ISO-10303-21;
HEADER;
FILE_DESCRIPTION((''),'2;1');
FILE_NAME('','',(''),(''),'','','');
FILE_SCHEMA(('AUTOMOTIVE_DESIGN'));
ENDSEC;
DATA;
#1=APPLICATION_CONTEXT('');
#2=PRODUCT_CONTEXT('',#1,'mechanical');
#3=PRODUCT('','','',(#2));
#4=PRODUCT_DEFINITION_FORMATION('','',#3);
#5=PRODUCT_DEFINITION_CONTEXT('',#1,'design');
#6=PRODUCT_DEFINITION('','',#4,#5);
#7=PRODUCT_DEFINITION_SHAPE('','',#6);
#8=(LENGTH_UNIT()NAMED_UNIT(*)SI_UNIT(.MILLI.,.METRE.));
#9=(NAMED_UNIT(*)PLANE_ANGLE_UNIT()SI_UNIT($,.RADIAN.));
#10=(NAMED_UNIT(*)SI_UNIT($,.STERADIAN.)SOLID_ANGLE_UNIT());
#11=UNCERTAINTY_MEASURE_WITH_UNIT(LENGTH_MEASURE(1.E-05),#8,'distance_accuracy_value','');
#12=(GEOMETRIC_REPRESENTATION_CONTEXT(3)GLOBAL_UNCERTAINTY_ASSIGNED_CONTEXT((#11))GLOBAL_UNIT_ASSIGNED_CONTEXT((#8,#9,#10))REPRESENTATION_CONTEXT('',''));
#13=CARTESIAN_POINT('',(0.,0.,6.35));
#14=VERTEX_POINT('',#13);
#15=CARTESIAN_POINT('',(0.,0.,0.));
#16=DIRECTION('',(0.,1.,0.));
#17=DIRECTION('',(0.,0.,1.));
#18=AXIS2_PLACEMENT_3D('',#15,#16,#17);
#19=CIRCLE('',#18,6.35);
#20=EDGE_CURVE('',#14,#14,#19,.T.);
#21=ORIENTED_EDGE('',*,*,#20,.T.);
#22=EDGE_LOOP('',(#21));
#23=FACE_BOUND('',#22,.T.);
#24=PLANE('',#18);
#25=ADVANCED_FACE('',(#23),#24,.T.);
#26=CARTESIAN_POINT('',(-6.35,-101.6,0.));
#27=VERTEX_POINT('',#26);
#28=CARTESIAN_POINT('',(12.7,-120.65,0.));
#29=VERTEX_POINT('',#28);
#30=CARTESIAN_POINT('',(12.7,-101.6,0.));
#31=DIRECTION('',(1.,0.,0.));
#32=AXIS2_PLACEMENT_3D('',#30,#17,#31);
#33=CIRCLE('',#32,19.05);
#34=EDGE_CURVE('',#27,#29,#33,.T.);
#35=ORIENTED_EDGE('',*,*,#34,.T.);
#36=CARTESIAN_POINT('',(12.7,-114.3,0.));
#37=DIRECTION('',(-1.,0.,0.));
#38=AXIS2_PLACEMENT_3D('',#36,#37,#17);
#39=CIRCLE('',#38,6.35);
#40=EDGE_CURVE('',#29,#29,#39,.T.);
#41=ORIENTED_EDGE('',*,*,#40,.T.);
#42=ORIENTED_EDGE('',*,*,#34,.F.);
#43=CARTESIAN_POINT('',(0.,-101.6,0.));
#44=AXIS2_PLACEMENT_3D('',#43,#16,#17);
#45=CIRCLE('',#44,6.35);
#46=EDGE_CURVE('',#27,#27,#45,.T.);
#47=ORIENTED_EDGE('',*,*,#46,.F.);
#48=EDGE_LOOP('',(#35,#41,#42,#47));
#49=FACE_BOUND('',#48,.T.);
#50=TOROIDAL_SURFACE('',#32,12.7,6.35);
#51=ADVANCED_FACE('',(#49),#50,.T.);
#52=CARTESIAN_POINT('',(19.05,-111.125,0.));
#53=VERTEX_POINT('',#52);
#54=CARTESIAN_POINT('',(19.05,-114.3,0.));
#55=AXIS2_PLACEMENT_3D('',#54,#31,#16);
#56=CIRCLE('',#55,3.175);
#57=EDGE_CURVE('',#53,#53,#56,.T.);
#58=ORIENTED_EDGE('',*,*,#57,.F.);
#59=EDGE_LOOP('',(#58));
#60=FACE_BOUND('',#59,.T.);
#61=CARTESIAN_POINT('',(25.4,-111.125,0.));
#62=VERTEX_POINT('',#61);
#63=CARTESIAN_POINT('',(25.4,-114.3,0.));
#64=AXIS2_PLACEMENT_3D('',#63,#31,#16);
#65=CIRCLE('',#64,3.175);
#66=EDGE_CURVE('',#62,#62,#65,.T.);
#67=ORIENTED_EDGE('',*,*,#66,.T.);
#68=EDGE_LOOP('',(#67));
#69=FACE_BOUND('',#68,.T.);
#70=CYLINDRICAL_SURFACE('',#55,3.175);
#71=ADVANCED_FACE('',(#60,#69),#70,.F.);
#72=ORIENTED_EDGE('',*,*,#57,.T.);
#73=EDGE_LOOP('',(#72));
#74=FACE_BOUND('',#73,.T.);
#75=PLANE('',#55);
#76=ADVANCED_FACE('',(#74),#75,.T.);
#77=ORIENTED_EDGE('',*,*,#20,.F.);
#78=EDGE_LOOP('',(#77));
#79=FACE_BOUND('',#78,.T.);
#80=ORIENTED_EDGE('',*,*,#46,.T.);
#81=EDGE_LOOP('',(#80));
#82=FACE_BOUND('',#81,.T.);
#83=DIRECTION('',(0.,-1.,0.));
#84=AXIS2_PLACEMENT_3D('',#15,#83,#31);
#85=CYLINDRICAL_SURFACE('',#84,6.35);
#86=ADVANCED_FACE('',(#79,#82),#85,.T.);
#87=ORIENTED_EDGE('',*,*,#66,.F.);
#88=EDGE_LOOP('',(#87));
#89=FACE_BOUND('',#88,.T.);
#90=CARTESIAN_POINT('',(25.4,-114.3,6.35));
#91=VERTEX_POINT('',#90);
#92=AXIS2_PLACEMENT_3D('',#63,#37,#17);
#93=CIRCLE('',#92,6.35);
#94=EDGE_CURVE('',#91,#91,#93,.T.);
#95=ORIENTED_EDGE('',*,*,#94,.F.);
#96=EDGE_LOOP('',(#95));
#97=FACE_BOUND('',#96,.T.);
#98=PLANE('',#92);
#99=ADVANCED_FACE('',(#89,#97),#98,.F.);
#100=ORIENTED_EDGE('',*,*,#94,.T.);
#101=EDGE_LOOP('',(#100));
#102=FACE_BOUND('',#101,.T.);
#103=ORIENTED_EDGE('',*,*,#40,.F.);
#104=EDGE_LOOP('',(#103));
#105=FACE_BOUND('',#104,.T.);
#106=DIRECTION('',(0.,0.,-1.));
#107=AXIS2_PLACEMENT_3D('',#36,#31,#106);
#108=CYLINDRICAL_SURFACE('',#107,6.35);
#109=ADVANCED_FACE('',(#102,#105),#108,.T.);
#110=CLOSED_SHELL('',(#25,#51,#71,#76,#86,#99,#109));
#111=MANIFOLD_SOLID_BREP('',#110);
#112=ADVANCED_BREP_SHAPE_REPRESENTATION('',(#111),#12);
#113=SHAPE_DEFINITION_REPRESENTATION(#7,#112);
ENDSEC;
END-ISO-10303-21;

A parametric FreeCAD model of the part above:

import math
import FreeCAD as App
import Part
import Sketcher
Q = App.Units.Quantity

doc = App.newDocument("Part")
params = doc.addObject("Spreadsheet::Sheet", "Params")
for row, (alias, value) in enumerate([
    ("sketch1_diameter", "0.5 in"),
    ("sketch2_radius", "0.5 in"),
    ("sketch2_height", "4 in"),
    ("sketch2_width", "0.5 in"),
    ("sketch3_diameter", "0.25 in"),
    ("pocket1_length", "0.25 in"),
], start=1):
    params.set(f"A{row}", alias)
    params.set(f"B{row}", "=" + value)
    params.setAlias(f"B{row}", alias)

body = doc.addObject("PartDesign::Body", "Body")

# Sketch on XZ plane
sketch1 = body.newObject("Sketcher::SketchObject", "Sketch")
sketch1.AttachmentSupport = (doc.getObject("XZ_Plane"), [""])
sketch1.MapMode = "FlatFace"
sketch1.addGeometry(Part.Circle(App.Vector(0, 0, 0), App.Vector(0, 0, 1), 6.35), False)
sketch1.addConstraint(Sketcher.Constraint("Coincident", 0, 3, -1, 1))
sketch1.addConstraint(Sketcher.Constraint("Diameter", 0, Q("0.5 in")))
sketch1.setExpression("Constraints[1]", "Params.sketch1_diameter")

# Sketch on XY plane
sketch2 = body.newObject("Sketcher::SketchObject", "Sketch001")
sketch2.AttachmentSupport = (doc.getObject("XY_Plane"), [""])
sketch2.MapMode = "FlatFace"
sketch2.addGeometry(Part.LineSegment(App.Vector(0, 0, 0), App.Vector(0, -101.6, 0)), False)
sketch2.addGeometry(Part.ArcOfCircle(Part.Circle(App.Vector(12.7, -101.6, 0), App.Vector(0, 0, 1), 12.7), math.radians(180), math.radians(270)), False)
sketch2.addGeometry(Part.LineSegment(App.Vector(12.7, -114.3, 0), App.Vector(25.4, -114.3, 0)), False)
sketch2.addConstraint(Sketcher.Constraint("Tangent", 0, 2, 1, 1))
sketch2.addConstraint(Sketcher.Constraint("Tangent", 1, 2, 2, 1))
sketch2.addConstraint(Sketcher.Constraint("Vertical", 0))
sketch2.addConstraint(Sketcher.Constraint("Horizontal", 2))
sketch2.addConstraint(Sketcher.Constraint("Coincident", 0, 1, -1, 1))
sketch2.addConstraint(Sketcher.Constraint("Radius", 1, Q("0.5 in")))
sketch2.addConstraint(Sketcher.Constraint("DistanceY", 0, 2, 0, 1, Q("4 in")))
sketch2.addConstraint(Sketcher.Constraint("DistanceX", 2, 1, 2, 2, Q("0.5 in")))
sketch2.setExpression("Constraints[5]", "Params.sketch2_radius")
sketch2.setExpression("Constraints[6]", "Params.sketch2_height")
sketch2.setExpression("Constraints[7]", "Params.sketch2_width")
doc.recompute()

additivepipe = body.newObject("PartDesign::AdditivePipe", "AdditivePipe")
additivepipe.Profile = sketch1
additivepipe.Spine = (sketch2, ["Edge1", "Edge2", "Edge3"])

# Sketch on YZ plane
sketch3 = body.newObject("Sketcher::SketchObject", "Sketch002")
sketch3.AttachmentSupport = (doc.getObject("YZ_Plane"), [""])
sketch3.MapMode = "FlatFace"
sketch3.AttachmentOffset = App.Placement(App.Vector(0, 0, 1 * 25.4), App.Rotation())
sketch3.addGeometry(Part.Circle(App.Vector(-114.3, 0, 0), App.Vector(0, 0, 1), 3.175), False)
sketch3.addConstraint(Sketcher.Constraint("PointOnObject", 0, 3, -1))
sketch3.addConstraint(Sketcher.Constraint("Diameter", 0, Q("0.25 in")))
sketch3.addConstraint(Sketcher.Constraint("DistanceX", 0, 3, -1, 1, Q("4.5 in")))
sketch3.setExpression("Constraints[1]", "Params.sketch3_diameter")
pocket1 = body.newObject("PartDesign::Pocket", "Pocket")
pocket1.Profile = sketch3
pocket1.setExpression("Length", "Params.pocket1_length")

doc.recompute()
